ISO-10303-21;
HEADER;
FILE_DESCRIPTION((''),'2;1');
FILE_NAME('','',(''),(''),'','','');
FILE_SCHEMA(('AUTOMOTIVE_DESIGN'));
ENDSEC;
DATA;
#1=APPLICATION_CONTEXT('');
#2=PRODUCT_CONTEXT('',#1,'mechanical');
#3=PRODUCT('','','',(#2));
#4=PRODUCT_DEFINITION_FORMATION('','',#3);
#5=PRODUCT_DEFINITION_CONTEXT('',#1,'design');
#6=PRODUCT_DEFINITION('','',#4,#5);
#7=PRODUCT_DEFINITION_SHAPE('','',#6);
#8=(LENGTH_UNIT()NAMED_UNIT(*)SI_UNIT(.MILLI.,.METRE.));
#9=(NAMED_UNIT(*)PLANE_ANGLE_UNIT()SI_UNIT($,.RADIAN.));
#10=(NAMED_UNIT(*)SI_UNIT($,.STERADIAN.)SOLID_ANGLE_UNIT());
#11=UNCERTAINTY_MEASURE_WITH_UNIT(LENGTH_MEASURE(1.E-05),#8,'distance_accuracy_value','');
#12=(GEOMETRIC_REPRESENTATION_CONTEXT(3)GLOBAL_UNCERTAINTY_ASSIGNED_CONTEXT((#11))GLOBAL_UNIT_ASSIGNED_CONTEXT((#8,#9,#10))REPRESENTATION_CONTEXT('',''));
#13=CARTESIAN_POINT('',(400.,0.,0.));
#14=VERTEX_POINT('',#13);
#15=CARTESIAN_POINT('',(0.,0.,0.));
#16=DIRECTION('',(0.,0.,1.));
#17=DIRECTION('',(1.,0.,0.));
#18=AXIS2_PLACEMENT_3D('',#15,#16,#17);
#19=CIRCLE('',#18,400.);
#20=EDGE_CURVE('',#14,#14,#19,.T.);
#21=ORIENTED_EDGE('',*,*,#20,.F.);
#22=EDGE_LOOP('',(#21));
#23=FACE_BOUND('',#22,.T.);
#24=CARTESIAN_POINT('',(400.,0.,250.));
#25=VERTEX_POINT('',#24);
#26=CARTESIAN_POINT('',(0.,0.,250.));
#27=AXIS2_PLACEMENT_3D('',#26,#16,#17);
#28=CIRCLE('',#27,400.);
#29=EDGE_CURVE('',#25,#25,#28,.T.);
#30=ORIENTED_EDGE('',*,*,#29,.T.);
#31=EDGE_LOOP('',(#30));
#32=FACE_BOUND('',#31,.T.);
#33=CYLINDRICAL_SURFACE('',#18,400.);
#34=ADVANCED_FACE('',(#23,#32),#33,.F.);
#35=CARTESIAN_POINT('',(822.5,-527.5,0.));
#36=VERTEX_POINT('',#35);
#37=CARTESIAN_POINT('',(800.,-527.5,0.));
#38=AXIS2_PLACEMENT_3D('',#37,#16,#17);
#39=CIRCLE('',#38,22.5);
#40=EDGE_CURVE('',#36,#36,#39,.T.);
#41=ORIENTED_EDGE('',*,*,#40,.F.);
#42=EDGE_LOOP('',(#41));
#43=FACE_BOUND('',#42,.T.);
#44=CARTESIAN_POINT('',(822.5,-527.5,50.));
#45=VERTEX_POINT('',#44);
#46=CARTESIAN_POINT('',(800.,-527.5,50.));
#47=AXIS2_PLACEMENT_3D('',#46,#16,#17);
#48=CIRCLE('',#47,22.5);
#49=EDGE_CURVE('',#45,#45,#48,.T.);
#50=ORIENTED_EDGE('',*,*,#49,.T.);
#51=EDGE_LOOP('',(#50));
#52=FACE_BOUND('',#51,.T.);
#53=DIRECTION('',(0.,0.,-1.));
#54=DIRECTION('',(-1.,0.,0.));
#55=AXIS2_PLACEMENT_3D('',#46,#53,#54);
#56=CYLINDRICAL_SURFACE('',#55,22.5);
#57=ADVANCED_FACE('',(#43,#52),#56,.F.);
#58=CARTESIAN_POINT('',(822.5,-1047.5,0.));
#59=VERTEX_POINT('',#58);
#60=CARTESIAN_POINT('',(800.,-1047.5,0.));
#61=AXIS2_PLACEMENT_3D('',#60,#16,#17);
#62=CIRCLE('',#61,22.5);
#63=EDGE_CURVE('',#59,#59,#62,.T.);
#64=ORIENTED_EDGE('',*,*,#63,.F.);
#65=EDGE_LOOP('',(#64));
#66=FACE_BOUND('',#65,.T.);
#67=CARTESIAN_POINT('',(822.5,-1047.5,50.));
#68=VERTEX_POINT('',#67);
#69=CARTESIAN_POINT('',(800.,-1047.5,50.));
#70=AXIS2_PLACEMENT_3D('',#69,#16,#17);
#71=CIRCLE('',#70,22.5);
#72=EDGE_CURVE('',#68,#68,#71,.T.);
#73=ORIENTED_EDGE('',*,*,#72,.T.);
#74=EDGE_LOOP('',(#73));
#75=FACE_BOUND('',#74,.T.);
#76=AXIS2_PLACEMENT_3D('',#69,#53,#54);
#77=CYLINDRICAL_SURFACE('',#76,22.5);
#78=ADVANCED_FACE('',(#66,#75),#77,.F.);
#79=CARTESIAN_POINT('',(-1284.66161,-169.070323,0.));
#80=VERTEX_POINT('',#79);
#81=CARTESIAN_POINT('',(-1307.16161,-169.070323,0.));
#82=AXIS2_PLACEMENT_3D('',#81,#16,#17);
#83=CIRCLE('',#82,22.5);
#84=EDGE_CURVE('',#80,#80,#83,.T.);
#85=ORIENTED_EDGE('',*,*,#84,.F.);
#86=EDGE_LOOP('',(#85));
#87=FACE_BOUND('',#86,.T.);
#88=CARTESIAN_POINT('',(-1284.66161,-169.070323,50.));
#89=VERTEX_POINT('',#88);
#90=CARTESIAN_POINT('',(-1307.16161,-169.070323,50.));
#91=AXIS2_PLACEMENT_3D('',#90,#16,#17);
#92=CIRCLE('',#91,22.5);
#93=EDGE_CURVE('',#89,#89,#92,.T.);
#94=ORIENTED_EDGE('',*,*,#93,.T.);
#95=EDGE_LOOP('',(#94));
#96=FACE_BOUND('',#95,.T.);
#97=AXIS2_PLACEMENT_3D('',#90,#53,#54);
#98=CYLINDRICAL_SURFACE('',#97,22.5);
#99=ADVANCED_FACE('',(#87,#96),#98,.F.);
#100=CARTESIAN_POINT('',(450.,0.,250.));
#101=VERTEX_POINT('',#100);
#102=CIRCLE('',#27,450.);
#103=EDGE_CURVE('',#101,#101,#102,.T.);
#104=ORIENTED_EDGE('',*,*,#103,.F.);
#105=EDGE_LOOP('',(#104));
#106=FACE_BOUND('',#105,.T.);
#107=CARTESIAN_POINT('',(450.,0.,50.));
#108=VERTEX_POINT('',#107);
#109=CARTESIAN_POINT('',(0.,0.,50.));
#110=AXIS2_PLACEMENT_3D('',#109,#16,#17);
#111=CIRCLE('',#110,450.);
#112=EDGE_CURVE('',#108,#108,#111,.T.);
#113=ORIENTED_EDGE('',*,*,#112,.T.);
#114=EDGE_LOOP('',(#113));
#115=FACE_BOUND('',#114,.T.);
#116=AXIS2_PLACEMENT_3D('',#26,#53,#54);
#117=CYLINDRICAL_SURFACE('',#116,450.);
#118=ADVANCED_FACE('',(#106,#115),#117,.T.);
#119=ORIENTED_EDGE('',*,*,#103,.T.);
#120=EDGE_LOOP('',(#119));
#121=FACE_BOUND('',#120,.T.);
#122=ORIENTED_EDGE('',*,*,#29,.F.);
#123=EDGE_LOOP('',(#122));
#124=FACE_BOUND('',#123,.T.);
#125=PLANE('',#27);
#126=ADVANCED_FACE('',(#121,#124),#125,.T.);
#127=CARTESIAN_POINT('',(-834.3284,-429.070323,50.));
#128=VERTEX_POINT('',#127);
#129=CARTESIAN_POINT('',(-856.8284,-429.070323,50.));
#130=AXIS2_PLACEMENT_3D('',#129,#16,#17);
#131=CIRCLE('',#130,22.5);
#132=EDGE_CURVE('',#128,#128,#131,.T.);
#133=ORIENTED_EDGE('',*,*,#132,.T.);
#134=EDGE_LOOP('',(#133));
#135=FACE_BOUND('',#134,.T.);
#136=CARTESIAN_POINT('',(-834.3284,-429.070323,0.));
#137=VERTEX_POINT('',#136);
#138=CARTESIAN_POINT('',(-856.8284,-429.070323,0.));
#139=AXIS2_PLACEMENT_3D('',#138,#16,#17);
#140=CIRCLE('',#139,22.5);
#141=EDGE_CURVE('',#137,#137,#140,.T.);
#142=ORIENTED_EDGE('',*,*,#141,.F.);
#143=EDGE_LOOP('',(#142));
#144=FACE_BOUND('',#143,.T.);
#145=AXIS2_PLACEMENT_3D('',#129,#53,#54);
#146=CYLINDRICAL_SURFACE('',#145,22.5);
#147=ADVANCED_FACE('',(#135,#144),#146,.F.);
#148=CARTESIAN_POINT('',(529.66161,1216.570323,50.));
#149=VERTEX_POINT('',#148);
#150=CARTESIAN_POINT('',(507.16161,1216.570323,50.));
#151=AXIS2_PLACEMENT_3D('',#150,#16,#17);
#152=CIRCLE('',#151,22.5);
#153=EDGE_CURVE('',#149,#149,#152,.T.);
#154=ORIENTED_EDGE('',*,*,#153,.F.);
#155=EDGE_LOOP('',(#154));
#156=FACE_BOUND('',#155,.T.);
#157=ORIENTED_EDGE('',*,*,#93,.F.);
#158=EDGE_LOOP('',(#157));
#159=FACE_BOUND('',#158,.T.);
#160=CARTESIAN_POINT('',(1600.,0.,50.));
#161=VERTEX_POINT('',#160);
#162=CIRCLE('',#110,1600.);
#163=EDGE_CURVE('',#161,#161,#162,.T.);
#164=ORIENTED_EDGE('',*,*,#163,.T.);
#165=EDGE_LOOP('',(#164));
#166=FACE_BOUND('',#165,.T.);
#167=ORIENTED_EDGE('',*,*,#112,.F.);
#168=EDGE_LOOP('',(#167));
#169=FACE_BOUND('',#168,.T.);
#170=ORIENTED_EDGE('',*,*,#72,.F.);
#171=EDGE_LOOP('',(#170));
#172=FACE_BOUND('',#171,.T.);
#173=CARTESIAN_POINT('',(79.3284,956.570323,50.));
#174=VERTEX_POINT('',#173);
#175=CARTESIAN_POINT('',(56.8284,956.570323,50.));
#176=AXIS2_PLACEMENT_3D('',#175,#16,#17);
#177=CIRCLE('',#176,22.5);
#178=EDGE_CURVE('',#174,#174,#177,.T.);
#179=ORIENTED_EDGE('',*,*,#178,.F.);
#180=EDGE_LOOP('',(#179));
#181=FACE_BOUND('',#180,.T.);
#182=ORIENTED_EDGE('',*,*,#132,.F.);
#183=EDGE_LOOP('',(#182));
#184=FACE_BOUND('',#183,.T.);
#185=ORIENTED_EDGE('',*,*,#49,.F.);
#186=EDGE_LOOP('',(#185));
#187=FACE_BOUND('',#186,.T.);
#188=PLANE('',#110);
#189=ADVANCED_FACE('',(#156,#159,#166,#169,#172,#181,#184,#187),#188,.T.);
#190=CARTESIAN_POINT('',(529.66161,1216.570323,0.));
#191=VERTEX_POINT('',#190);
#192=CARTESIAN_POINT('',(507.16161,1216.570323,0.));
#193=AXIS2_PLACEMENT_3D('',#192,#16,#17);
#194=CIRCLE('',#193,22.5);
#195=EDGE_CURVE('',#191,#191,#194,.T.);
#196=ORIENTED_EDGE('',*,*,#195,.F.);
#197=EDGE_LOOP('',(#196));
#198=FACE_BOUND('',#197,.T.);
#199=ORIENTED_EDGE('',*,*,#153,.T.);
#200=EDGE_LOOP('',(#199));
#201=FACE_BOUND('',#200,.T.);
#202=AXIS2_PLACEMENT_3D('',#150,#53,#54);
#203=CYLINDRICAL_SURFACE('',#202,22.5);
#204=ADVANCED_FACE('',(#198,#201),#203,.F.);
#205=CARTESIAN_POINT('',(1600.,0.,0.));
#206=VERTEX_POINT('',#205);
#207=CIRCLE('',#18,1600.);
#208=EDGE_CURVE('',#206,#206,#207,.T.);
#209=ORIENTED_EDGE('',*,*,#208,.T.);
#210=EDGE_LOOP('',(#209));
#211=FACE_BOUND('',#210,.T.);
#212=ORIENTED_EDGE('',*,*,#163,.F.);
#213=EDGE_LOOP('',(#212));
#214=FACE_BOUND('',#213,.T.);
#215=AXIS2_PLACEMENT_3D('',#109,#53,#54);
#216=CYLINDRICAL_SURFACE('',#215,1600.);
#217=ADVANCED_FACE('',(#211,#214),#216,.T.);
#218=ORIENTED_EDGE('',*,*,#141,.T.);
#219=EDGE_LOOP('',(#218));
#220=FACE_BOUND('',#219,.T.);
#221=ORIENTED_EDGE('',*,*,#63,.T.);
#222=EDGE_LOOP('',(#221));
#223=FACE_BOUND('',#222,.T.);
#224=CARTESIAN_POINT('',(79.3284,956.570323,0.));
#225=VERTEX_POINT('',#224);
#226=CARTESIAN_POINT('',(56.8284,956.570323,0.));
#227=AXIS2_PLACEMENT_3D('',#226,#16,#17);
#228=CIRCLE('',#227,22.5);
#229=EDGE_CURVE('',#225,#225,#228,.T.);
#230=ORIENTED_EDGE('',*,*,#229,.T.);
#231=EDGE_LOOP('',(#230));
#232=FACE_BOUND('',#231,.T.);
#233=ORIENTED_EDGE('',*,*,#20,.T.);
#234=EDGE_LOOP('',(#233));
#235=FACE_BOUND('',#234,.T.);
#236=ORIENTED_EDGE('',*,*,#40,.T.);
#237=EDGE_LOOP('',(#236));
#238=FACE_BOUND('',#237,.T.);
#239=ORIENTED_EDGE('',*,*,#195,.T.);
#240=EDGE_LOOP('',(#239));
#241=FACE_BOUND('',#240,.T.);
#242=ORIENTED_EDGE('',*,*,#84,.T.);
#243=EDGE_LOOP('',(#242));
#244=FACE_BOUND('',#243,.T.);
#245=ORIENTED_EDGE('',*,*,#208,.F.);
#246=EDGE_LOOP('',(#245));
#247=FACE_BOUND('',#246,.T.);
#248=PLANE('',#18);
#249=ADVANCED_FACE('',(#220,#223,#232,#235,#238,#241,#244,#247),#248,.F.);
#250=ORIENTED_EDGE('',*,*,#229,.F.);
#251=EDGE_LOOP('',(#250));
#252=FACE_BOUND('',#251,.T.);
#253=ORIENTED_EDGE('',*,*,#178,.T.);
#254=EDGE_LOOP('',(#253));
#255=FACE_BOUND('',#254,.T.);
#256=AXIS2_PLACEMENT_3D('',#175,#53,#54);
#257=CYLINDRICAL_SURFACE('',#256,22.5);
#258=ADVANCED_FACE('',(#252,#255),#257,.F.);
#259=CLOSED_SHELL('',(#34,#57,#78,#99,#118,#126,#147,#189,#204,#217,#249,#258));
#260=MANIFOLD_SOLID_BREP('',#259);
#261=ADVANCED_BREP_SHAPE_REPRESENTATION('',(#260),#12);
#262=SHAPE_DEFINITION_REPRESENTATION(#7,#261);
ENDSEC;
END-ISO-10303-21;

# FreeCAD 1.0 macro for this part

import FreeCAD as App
import Part
import Sketcher

V = App.Vector
Q = App.Units.Quantity

doc = App.newDocument("Part")
body = doc.addObject("PartDesign::Body", "Body")

# Sketch on XY plane
sketch1 = doc.addObject("Sketcher::SketchObject", "Sketch")
body.addObject(sketch1)
sketch1.AttachmentSupport = (doc.XY_Plane, [""])
sketch1.MapMode = "FlatFace"
sketch1.addGeometry([
    Part.Circle(V(0, 0, 0), V(0, 0, 1), 1600),  # 0
    Part.Circle(V(-857, -429, 0), V(0, 0, 1), 22),  # 1
    Part.Circle(V(-1307, -169, 0), V(0, 0, 1), 22),  # 2
    Part.Circle(V(800, -1048, 0), V(0, 0, 1), 22),  # 3
    Part.Circle(V(800, -528, 0), V(0, 0, 1), 22),  # 4
    Part.Circle(V(57, 957, 0), V(0, 0, 1), 22),  # 5
    Part.Circle(V(507, 1217, 0), V(0, 0, 1), 22),  # 6
], False)
sketch1.addConstraint([
    Sketcher.Constraint("Coincident", 0, 3, -1, 1),
    Sketcher.Constraint("Equal", 1, 2),
    Sketcher.Constraint("Equal", 2, 3),
    Sketcher.Constraint("Equal", 3, 4),
    Sketcher.Constraint("Equal", 4, 5),
    Sketcher.Constraint("Equal", 5, 6),
    Sketcher.Constraint("Vertical", 3, 3, 4, 3),
    Sketcher.Constraint("Diameter", 0, Q("3200 mm")),
    Sketcher.Constraint("Diameter", 1, Q("45 mm")),
    Sketcher.Constraint("DistanceX", -1, 1, 3, 3, Q("800 mm")),
    Sketcher.Constraint("DistanceY", 1, 3, 2, 3, Q("260 mm")),
    Sketcher.Constraint("DistanceY", 3, 3, 4, 3, Q("520 mm")),
    Sketcher.Constraint("DistanceY", 5, 3, 6, 3, Q("260 mm")),
    Sketcher.Constraint("DistanceY", 3, 3, -1, 1, Q("1047.5 mm")),
    Sketcher.Constraint("DistanceX", 1, 3, -1, 1, Q("856.8284 mm")),
    Sketcher.Constraint("DistanceX", -1, 1, 5, 3, Q("56.8284 mm")),
    Sketcher.Constraint("DistanceX", 2, 3, -1, 1, Q("1307.16161 mm")),
    Sketcher.Constraint("DistanceX", -1, 1, 6, 3, Q("507.16161 mm")),
    Sketcher.Constraint("DistanceY", 1, 3, -1, 1, Q("429.070323 mm")),
    Sketcher.Constraint("DistanceY", -1, 1, 5, 3, Q("956.570323 mm")),
])
pad1 = doc.addObject("PartDesign::Pad", "Pad")
body.addObject(pad1)
pad1.Profile = sketch1
pad1.Length = 50

# Sketch on XY plane
sketch2 = doc.addObject("Sketcher::SketchObject", "Sketch001")
body.addObject(sketch2)
sketch2.AttachmentSupport = (doc.XY_Plane, [""])
sketch2.MapMode = "FlatFace"
sketch2.AttachmentOffset = App.Placement(V(0, 0, 50), App.Rotation())
sketch2.addGeometry(Part.Circle(V(0, 0, 0), V(0, 0, 1), 400), False)
sketch2.addConstraint([
    Sketcher.Constraint("Coincident", 0, 3, -1, 1),
    Sketcher.Constraint("Diameter", 0, Q("800 mm")),
])
pocket1 = doc.addObject("PartDesign::Pocket", "Pocket")
body.addObject(pocket1)
pocket1.Profile = sketch2
pocket1.Type = "ThroughAll"

# Sketch on XY plane
sketch3 = doc.addObject("Sketcher::SketchObject", "Sketch002")
body.addObject(sketch3)
sketch3.AttachmentSupport = (doc.XY_Plane, [""])
sketch3.MapMode = "FlatFace"
sketch3.AttachmentOffset = App.Placement(V(0, 0, 50), App.Rotation())
sketch3.addGeometry(Part.Circle(V(0, 0, 0), V(0, 0, 1), 450), False)
sketch3.addConstraint([
    Sketcher.Constraint("Coincident", 0, 3, -1, 1),
    Sketcher.Constraint("Diameter", 0, Q("900 mm")),
])
pad2 = doc.addObject("PartDesign::Pad", "Pad001")
body.addObject(pad2)
pad2.Profile = sketch3
pad2.Length = 200

# Sketch on XY plane
sketch4 = doc.addObject("Sketcher::SketchObject", "Sketch003")
body.addObject(sketch4)
sketch4.AttachmentSupport = (doc.XY_Plane, [""])
sketch4.MapMode = "FlatFace"
sketch4.AttachmentOffset = App.Placement(V(0, 0, 250), App.Rotation())
sketch4.addGeometry(Part.Circle(V(0, 0, 0), V(0, 0, 1), 400), False)
sketch4.addConstraint([
    Sketcher.Constraint("Coincident", 0, 3, -1, 1),
    Sketcher.Constraint("Diameter", 0, Q("800 mm")),
])
pocket2 = doc.addObject("PartDesign::Pocket", "Pocket001")
body.addObject(pocket2)
pocket2.Profile = sketch4
pocket2.Type = "ThroughAll"

doc.recompute()
